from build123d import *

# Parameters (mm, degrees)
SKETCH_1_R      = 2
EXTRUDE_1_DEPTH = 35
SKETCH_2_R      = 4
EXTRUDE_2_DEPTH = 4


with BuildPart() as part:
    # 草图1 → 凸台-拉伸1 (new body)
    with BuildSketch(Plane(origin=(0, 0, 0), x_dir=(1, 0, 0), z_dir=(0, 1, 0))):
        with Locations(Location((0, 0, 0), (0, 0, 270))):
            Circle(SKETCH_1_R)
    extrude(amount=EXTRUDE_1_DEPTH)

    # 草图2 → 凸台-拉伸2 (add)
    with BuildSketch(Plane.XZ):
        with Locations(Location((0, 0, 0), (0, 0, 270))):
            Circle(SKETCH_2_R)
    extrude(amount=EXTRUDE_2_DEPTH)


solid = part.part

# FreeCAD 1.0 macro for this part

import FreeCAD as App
import Part
import Sketcher
from FreeCAD import Vector

doc = App.newDocument("Part")
params = doc.addObject("Spreadsheet::Sheet", "Params")
for row, (alias, value) in enumerate([
    ("sketch1_diameter", "4 mm"),
    ("pad1_length", "35 mm"),
    ("sketch2_diameter", "8 mm"),
    ("pad2_length", "4 mm"),
], start=1):
    params.set(f"A{row}", alias)
    params.set(f"B{row}", "=" + value)
    params.setAlias(f"B{row}", alias)

body = doc.addObject("PartDesign::Body", "Body")

# Sketch on XZ plane
sketch1 = doc.addObject("Sketcher::SketchObject", "Sketch")
body.addObject(sketch1)
sketch1.AttachmentSupport = (doc.XZ_Plane, [""])
sketch1.MapMode = "FlatFace"
sketch1.addGeometry(Part.Circle(Vector(0, 0, 0), Vector(0, 0, 1), 2), False)
sketch1.addConstraint([
    Sketcher.Constraint("Coincident", 0, 3, -1, 1),
    Sketcher.Constraint("Diameter", 0, 4.0),
])
sketch1.setExpression("Constraints[1]", "Params.sketch1_diameter")
pad1 = doc.addObject("PartDesign::Pad", "Pad")
body.addObject(pad1)
pad1.Profile = sketch1
pad1.setExpression("Length", "Params.pad1_length")
pad1.Reversed = True

# Sketch on XZ plane
sketch2 = doc.addObject("Sketcher::SketchObject", "Sketch001")
body.addObject(sketch2)
sketch2.AttachmentSupport = (doc.XZ_Plane, [""])
sketch2.MapMode = "FlatFace"
sketch2.addGeometry(Part.Circle(Vector(0, 0, 0), Vector(0, 0, 1), 4), False)
sketch2.addConstraint([
    Sketcher.Constraint("Coincident", 0, 3, -1, 1),
    Sketcher.Constraint("Diameter", 0, 8.0),
])
sketch2.setExpression("Constraints[1]", "Params.sketch2_diameter")
pad2 = doc.addObject("PartDesign::Pad", "Pad001")
body.addObject(pad2)
pad2.Profile = sketch2
pad2.setExpression("Length", "Params.pad2_length")

doc.recompute()
